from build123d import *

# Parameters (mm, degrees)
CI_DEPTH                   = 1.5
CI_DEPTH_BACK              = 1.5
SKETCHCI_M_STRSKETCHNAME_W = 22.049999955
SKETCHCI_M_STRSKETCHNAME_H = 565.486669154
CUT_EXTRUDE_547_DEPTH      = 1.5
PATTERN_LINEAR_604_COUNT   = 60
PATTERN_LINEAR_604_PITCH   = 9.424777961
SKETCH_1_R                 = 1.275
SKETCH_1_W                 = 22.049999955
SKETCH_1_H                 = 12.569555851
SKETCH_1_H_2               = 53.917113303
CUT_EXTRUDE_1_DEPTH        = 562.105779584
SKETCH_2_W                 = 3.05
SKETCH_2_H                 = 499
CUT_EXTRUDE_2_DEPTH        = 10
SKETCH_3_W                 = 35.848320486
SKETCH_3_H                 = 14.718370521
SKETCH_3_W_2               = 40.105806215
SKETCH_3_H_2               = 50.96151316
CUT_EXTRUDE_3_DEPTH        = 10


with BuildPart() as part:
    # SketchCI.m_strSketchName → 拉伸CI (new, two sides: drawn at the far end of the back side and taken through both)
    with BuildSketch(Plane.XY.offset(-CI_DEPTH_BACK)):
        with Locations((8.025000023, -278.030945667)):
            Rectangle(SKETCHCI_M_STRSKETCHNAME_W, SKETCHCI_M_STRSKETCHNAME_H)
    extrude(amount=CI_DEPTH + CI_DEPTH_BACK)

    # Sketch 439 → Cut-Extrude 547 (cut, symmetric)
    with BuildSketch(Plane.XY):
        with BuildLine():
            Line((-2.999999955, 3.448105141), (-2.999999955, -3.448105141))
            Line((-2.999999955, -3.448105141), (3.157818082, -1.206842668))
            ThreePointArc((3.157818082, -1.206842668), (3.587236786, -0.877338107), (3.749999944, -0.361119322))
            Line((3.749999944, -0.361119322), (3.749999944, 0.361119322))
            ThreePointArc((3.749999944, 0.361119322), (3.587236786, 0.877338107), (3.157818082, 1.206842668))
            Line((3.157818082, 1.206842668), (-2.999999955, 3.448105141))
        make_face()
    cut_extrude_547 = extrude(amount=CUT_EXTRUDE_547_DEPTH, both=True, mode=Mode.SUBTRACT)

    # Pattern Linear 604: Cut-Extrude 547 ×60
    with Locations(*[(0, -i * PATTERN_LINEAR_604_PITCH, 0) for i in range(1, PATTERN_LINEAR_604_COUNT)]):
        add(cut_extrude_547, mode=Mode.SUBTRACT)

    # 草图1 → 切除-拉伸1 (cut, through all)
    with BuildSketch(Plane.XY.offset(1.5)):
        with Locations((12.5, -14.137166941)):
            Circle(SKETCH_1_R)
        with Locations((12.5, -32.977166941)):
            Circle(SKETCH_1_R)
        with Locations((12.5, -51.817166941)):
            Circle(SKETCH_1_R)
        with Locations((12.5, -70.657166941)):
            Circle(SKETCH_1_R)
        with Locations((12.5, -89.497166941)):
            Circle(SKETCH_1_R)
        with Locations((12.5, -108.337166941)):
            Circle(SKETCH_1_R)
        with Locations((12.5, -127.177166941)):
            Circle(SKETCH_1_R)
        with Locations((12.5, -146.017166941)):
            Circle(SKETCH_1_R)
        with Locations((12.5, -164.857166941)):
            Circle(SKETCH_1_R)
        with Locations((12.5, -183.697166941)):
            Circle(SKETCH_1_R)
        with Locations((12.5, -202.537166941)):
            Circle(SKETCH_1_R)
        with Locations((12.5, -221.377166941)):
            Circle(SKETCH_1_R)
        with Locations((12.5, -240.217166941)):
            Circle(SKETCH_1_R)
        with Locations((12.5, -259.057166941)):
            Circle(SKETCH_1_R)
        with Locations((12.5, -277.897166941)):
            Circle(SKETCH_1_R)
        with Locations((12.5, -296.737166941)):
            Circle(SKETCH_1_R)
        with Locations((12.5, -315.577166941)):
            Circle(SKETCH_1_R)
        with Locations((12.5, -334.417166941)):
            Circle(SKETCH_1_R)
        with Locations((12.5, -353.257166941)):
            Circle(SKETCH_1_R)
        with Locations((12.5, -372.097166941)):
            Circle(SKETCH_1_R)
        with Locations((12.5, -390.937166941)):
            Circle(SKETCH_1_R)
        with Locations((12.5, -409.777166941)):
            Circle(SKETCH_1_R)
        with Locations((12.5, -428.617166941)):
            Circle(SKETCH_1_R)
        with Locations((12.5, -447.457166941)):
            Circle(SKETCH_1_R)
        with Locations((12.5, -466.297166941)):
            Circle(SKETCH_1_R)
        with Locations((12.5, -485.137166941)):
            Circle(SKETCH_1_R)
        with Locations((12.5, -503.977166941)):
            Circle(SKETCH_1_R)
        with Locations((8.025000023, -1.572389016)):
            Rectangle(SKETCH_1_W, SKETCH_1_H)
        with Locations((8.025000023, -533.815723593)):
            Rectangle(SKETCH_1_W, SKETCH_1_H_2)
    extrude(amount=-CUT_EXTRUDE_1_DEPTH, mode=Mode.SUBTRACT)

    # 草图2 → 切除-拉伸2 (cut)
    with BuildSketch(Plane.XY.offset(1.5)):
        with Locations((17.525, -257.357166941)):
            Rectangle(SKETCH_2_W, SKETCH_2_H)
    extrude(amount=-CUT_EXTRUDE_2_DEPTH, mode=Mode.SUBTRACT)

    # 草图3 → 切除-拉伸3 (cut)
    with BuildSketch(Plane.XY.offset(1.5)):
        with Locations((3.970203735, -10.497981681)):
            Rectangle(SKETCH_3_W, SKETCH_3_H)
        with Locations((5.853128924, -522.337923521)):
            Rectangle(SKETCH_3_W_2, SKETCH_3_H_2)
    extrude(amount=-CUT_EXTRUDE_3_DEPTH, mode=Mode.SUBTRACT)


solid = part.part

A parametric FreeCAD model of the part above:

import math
import FreeCAD as App
import Part
import Sketcher
from FreeCAD import Vector
Q = App.Units.Quantity

doc = App.newDocument("Part")
body = doc.addObject("PartDesign::Body", "Body")

# Sketch on XY plane
sketch1 = body.newObject("Sketcher::SketchObject", "Sketch")
sketch1.AttachmentSupport = (doc.getObject("XY_Plane"), [""])
sketch1.MapMode = "FlatFace"
sketch1.addGeometry([
    Part.LineSegment(Vector(-3, 5, 0), Vector(-3, -561, 0)),
    Part.LineSegment(Vector(-3, -561, 0), Vector(19, -561, 0)),
    Part.LineSegment(Vector(19, -561, 0), Vector(19, 5, 0)),
    Part.LineSegment(Vector(19, 5, 0), Vector(-3, 5, 0)),
], False)
sketch1.addConstraint([
    Sketcher.Constraint("Coincident", 0, 2, 1, 1),
    Sketcher.Constraint("Coincident", 1, 2, 2, 1),
    Sketcher.Constraint("Coincident", 2, 2, 3, 1),
    Sketcher.Constraint("Coincident", 3, 2, 0, 1),
    Sketcher.Constraint("Vertical", 0),
    Sketcher.Constraint("Horizontal", 1),
    Sketcher.Constraint("Vertical", 2),
    Sketcher.Constraint("Horizontal", 3),
    Sketcher.Constraint("DistanceX", 0, 2, -1, 1, 3.0),
    Sketcher.Constraint("DistanceX", 1, 1, 1, 2, 22.05),
    Sketcher.Constraint("DistanceY", 0, 2, 0, 1, 565.486669),
    Sketcher.Constraint("DistanceY", 0, 2, -1, 1, 560.77428),
])
pad1 = body.newObject("PartDesign::Pad", "Pad")
pad1.Profile = sketch1
pad1.Type = "TwoLengths"
pad1.Length = 1.5
pad1.Length2 = 1.5

# Sketch on XY plane
sketch2 = body.newObject("Sketcher::SketchObject", "Sketch001")
sketch2.AttachmentSupport = (doc.getObject("XY_Plane"), [""])
sketch2.MapMode = "FlatFace"
sketch2.addGeometry([
    Part.LineSegment(Vector(-3, 3.4, 0), Vector(-3, -3.4, 0)),  # 0
    Part.LineSegment(Vector(-3, -3.4, 0), Vector(3.2, -1.2, 0)),  # 1
    Part.ArcOfCircle(Part.Circle(Vector(2.8, -0.4, 0), Vector(0, 0, 1), 0.9), math.radians(-70), math.radians(0)),  # 2
    Part.LineSegment(Vector(3.7, -0.4, 0), Vector(3.7, 0.4, 0)),  # 3
    Part.ArcOfCircle(Part.Circle(Vector(2.8, 0.4, 0), Vector(0, 0, 1), 0.9), math.radians(0), math.radians(70)),  # 4
    Part.LineSegment(Vector(3.2, 1.2, 0), Vector(-3, 3.4, 0)),  # 5
], False)
sketch2.addConstraint([
    Sketcher.Constraint("Coincident", 0, 2, 1, 1),
    Sketcher.Constraint("Tangent", 1, 2, 2, 1),
    Sketcher.Constraint("Tangent", 2, 2, 3, 1),
    Sketcher.Constraint("Tangent", 3, 2, 4, 1),
    Sketcher.Constraint("Tangent", 4, 2, 5, 1),
    Sketcher.Constraint("Coincident", 5, 2, 0, 1),
    Sketcher.Constraint("Vertical", 0),
    Sketcher.Constraint("Vertical", 3),
    Sketcher.Constraint("Equal", 2, 4),
    Sketcher.Constraint("Symmetric", 1, 2, 4, 2, -1),
    Sketcher.Constraint("Radius", 2, 0.9),
    Sketcher.Constraint("Angle", 1, Q("20 deg")),
    Sketcher.Constraint("DistanceX", 0, 2, -1, 1, 3.0),
    Sketcher.Constraint("DistanceX", -1, 1, 2, 3, 2.85),
    Sketcher.Constraint("DistanceY", 0, 2, 0, 1, 6.89621),
])
pocket1 = body.newObject("PartDesign::Pocket", "Pocket")
pocket1.Profile = sketch2
pocket1.Length = 3
pocket1.Midplane = True
doc.recompute()

linearpattern = body.newObject("PartDesign::LinearPattern", "LinearPattern")
linearpattern.Originals = [pocket1]
linearpattern.Direction = (doc.getObject("Y_Axis"), [""])
linearpattern.Mode = "offset"
linearpattern.Offset = 9.424778
linearpattern.Occurrences = 60
linearpattern.Reversed = True
body.Tip = linearpattern

# Sketch on XY plane
sketch3 = body.newObject("Sketcher::SketchObject", "Sketch002")
sketch3.AttachmentSupport = (doc.getObject("XY_Plane"), [""])
sketch3.MapMode = "FlatFace"
sketch3.AttachmentOffset = App.Placement(Vector(0, 0, 1.5), App.Rotation())
sketch3.addGeometry([
    Part.Circle(Vector(12.5, -14.1, 0), Vector(0, 0, 1), 1.3),  # 0
    Part.Circle(Vector(12.5, -33, 0), Vector(0, 0, 1), 1.3),  # 1
    Part.Circle(Vector(12.5, -51.8, 0), Vector(0, 0, 1), 1.3),  # 2
    Part.Circle(Vector(12.5, -70.7, 0), Vector(0, 0, 1), 1.3),  # 3
    Part.Circle(Vector(12.5, -89.5, 0), Vector(0, 0, 1), 1.3),  # 4
    Part.Circle(Vector(12.5, -108.3, 0), Vector(0, 0, 1), 1.3),  # 5
    Part.Circle(Vector(12.5, -127.2, 0), Vector(0, 0, 1), 1.3),  # 6
    Part.Circle(Vector(12.5, -146, 0), Vector(0, 0, 1), 1.3),  # 7
    Part.Circle(Vector(12.5, -164.9, 0), Vector(0, 0, 1), 1.3),  # 8
    Part.Circle(Vector(12.5, -183.7, 0), Vector(0, 0, 1), 1.3),  # 9
    Part.Circle(Vector(12.5, -202.5, 0), Vector(0, 0, 1), 1.3),  # 10
    Part.Circle(Vector(12.5, -221.4, 0), Vector(0, 0, 1), 1.3),  # 11
    Part.Circle(Vector(12.5, -240.2, 0), Vector(0, 0, 1), 1.3),  # 12
    Part.Circle(Vector(12.5, -259.1, 0), Vector(0, 0, 1), 1.3),  # 13
    Part.Circle(Vector(12.5, -277.9, 0), Vector(0, 0, 1), 1.3),  # 14
    Part.Circle(Vector(12.5, -296.7, 0), Vector(0, 0, 1), 1.3),  # 15
    Part.Circle(Vector(12.5, -315.6, 0), Vector(0, 0, 1), 1.3),  # 16
    Part.Circle(Vector(12.5, -334.4, 0), Vector(0, 0, 1), 1.3),  # 17
    Part.Circle(Vector(12.5, -353.3, 0), Vector(0, 0, 1), 1.3),  # 18
    Part.Circle(Vector(12.5, -372.1, 0), Vector(0, 0, 1), 1.3),  # 19
    Part.Circle(Vector(12.5, -390.9, 0), Vector(0, 0, 1), 1.3),  # 20
    Part.Circle(Vector(12.5, -409.8, 0), Vector(0, 0, 1), 1.3),  # 21
    Part.Circle(Vector(12.5, -428.6, 0), Vector(0, 0, 1), 1.3),  # 22
    Part.Circle(Vector(12.5, -447.5, 0), Vector(0, 0, 1), 1.3),  # 23
    Part.Circle(Vector(12.5, -466.3, 0), Vector(0, 0, 1), 1.3),  # 24
    Part.Circle(Vector(12.5, -485.1, 0), Vector(0, 0, 1), 1.3),  # 25
    Part.Circle(Vector(12.5, -504, 0), Vector(0, 0, 1), 1.3),  # 26
    Part.LineSegment(Vector(-3, 4.7, 0), Vector(-3, -7.9, 0)),  # 27
    Part.LineSegment(Vector(-3, -7.9, 0), Vector(19.1, -7.9, 0)),  # 28
    Part.LineSegment(Vector(19.1, -7.9, 0), Vector(19.1, 4.7, 0)),  # 29
    Part.LineSegment(Vector(19.1, 4.7, 0), Vector(-3, 4.7, 0)),  # 30
    Part.LineSegment(Vector(-3, -506.9, 0), Vector(-3, -560.8, 0)),  # 31
    Part.LineSegment(Vector(-3, -560.8, 0), Vector(19.1, -560.8, 0)),  # 32
    Part.LineSegment(Vector(19.1, -560.8, 0), Vector(19.1, -506.9, 0)),  # 33
    Part.LineSegment(Vector(19.1, -506.9, 0), Vector(-3, -506.9, 0)),  # 34
], False)
sketch3.addConstraint([
    Sketcher.Constraint("Coincident", 27, 2, 28, 1),
    Sketcher.Constraint("Coincident", 28, 2, 29, 1),
    Sketcher.Constraint("Coincident", 29, 2, 30, 1),
    Sketcher.Constraint("Coincident", 30, 2, 27, 1),
    Sketcher.Constraint("Coincident", 31, 2, 32, 1),
    Sketcher.Constraint("Coincident", 32, 2, 33, 1),
    Sketcher.Constraint("Coincident", 33, 2, 34, 1),
    Sketcher.Constraint("Coincident", 34, 2, 31, 1),
    Sketcher.Constraint("Vertical", 27),
    Sketcher.Constraint("Horizontal", 28),
    Sketcher.Constraint("Vertical", 29),
    Sketcher.Constraint("Horizontal", 30),
    Sketcher.Constraint("Vertical", 31),
    Sketcher.Constraint("Horizontal", 32),
    Sketcher.Constraint("Vertical", 33),
    Sketcher.Constraint("Horizontal", 34),
    Sketcher.Constraint("Equal", 0, 1),
    Sketcher.Constraint("Equal", 1, 2),
    Sketcher.Constraint("Equal", 2, 3),
    Sketcher.Constraint("Equal", 3, 4),
    Sketcher.Constraint("Equal", 4, 5),
    Sketcher.Constraint("Equal", 5, 6),
    Sketcher.Constraint("Equal", 6, 7),
    Sketcher.Constraint("Equal", 7, 8),
    Sketcher.Constraint("Equal", 8, 9),
    Sketcher.Constraint("Equal", 9, 10),
    Sketcher.Constraint("Equal", 10, 11),
    Sketcher.Constraint("Equal", 11, 12),
    Sketcher.Constraint("Equal", 12, 13),
    Sketcher.Constraint("Equal", 13, 14),
    Sketcher.Constraint("Equal", 14, 15),
    Sketcher.Constraint("Equal", 15, 16),
    Sketcher.Constraint("Equal", 16, 17),
    Sketcher.Constraint("Equal", 17, 18),
    Sketcher.Constraint("Equal", 18, 19),
    Sketcher.Constraint("Equal", 19, 20),
    Sketcher.Constraint("Equal", 20, 21),
    Sketcher.Constraint("Equal", 21, 22),
    Sketcher.Constraint("Equal", 22, 23),
    Sketcher.Constraint("Equal", 23, 24),
    Sketcher.Constraint("Equal", 24, 25),
    Sketcher.Constraint("Equal", 25, 26),
    Sketcher.Constraint("Vertical", 0, 3, 1, 3),
    Sketcher.Constraint("Vertical", 1, 3, 2, 3),
    Sketcher.Constraint("Vertical", 2, 3, 3, 3),
    Sketcher.Constraint("Vertical", 3, 3, 4, 3),
    Sketcher.Constraint("Vertical", 4, 3, 5, 3),
    Sketcher.Constraint("Vertical", 5, 3, 6, 3),
    Sketcher.Constraint("Vertical", 6, 3, 7, 3),
    Sketcher.Constraint("Vertical", 7, 3, 8, 3),
    Sketcher.Constraint("Vertical", 8, 3, 9, 3),
    Sketcher.Constraint("Vertical", 9, 3, 10, 3),
    Sketcher.Constraint("Vertical", 10, 3, 11, 3),
    Sketcher.Constraint("Vertical", 11, 3, 12, 3),
    Sketcher.Constraint("Vertical", 12, 3, 13, 3),
    Sketcher.Constraint("Vertical", 13, 3, 14, 3),
    Sketcher.Constraint("Vertical", 14, 3, 15, 3),
    Sketcher.Constraint("Vertical", 15, 3, 16, 3),
    Sketcher.Constraint("Vertical", 16, 3, 17, 3),
    Sketcher.Constraint("Vertical", 17, 3, 18, 3),
    Sketcher.Constraint("Vertical", 18, 3, 19, 3),
    Sketcher.Constraint("Vertical", 19, 3, 20, 3),
    Sketcher.Constraint("Vertical", 20, 3, 21, 3),
    Sketcher.Constraint("Vertical", 21, 3, 22, 3),
    Sketcher.Constraint("Vertical", 22, 3, 23, 3),
    Sketcher.Constraint("Vertical", 23, 3, 24, 3),
    Sketcher.Constraint("Vertical", 24, 3, 25, 3),
    Sketcher.Constraint("Vertical", 25, 3, 26, 3),
    Sketcher.Constraint("Vertical", 30, 2, 31, 2),
    Sketcher.Constraint("Vertical", 29, 2, 32, 2),
    Sketcher.Constraint("Diameter", 0, 2.55),
    Sketcher.Constraint("DistanceX", 27, 2, -1, 1, 3.0),
    Sketcher.Constraint("DistanceX", 28, 1, 28, 2, 22.05),
    Sketcher.Constraint("DistanceX", -1, 1, 0, 3, 12.5),
    Sketcher.Constraint("DistanceY", 5, 3, 0, 3, 94.2),
    Sketcher.Constraint("DistanceY", 6, 3, 1, 3, 94.2),
    Sketcher.Constraint("DistanceY", 7, 3, 2, 3, 94.2),
    Sketcher.Constraint("DistanceY", 8, 3, 3, 3, 94.2),
    Sketcher.Constraint("DistanceY", 9, 3, 4, 3, 94.2),
    Sketcher.Constraint("DistanceY", 10, 3, 5, 3, 94.2),
    Sketcher.Constraint("DistanceY", 11, 3, 6, 3, 94.2),
    Sketcher.Constraint("DistanceY", 12, 3, 7, 3, 94.2),
    Sketcher.Constraint("DistanceY", 13, 3, 8, 3, 94.2),
    Sketcher.Constraint("DistanceY", 14, 3, 9, 3, 94.2),
    Sketcher.Constraint("DistanceY", 15, 3, 10, 3, 94.2),
    Sketcher.Constraint("DistanceY", 16, 3, 11, 3, 94.2),
    Sketcher.Constraint("DistanceY", 17, 3, 12, 3, 94.2),
    Sketcher.Constraint("DistanceY", 18, 3, 13, 3, 94.2),
    Sketcher.Constraint("DistanceY", 19, 3, 14, 3, 94.2),
    Sketcher.Constraint("DistanceY", 20, 3, 15, 3, 94.2),
    Sketcher.Constraint("DistanceY", 21, 3, 16, 3, 94.2),
    Sketcher.Constraint("DistanceY", 22, 3, 17, 3, 94.2),
    Sketcher.Constraint("DistanceY", 23, 3, 18, 3, 94.2),
    Sketcher.Constraint("DistanceY", 24, 3, 19, 3, 94.2),
    Sketcher.Constraint("DistanceY", 25, 3, 20, 3, 94.2),
    Sketcher.Constraint("DistanceY", 26, 3, 21, 3, 94.2),
    Sketcher.Constraint("DistanceY", 3, 3, 27, 2, 62.8),
    Sketcher.Constraint("DistanceY", 1, 3, 0, 3, 18.84),
    Sketcher.Constraint("DistanceY", 2, 3, 1, 3, 18.84),
    Sketcher.Constraint("DistanceY", 3, 3, 2, 3, 18.84),
    Sketcher.Constraint("DistanceY", 4, 3, 3, 3, 18.84),
    Sketcher.Constraint("DistanceY", 33, 2, 26, 3, 2.88),
    Sketcher.Constraint("DistanceY", 27, 2, 27, 1, 12.569556),
    Sketcher.Constraint("DistanceY", 31, 2, 31, 1, 53.917113),
    Sketcher.Constraint("DistanceY", -1, 1, 29, 2, 4.712389),
])
pocket2 = body.newObject("PartDesign::Pocket", "Pocket001")
pocket2.Profile = sketch3
pocket2.Type = "ThroughAll"

# Sketch on XY plane
sketch4 = body.newObject("Sketcher::SketchObject", "Sketch003")
sketch4.AttachmentSupport = (doc.getObject("XY_Plane"), [""])
sketch4.MapMode = "FlatFace"
sketch4.AttachmentOffset = App.Placement(Vector(0, 0, 1.5), App.Rotation())
sketch4.addGeometry([
    Part.LineSegment(Vector(16, -7.9, 0), Vector(16, -506.9, 0)),
    Part.LineSegment(Vector(16, -506.9, 0), Vector(19.1, -506.9, 0)),
    Part.LineSegment(Vector(19.1, -506.9, 0), Vector(19.1, -7.9, 0)),
    Part.LineSegment(Vector(19.1, -7.9, 0), Vector(16, -7.9, 0)),
], False)
sketch4.addConstraint([
    Sketcher.Constraint("Coincident", 0, 2, 1, 1),
    Sketcher.Constraint("Coincident", 1, 2, 2, 1),
    Sketcher.Constraint("Coincident", 2, 2, 3, 1),
    Sketcher.Constraint("Coincident", 3, 2, 0, 1),
    Sketcher.Constraint("Vertical", 0),
    Sketcher.Constraint("Horizontal", 1),
    Sketcher.Constraint("Vertical", 2),
    Sketcher.Constraint("Horizontal", 3),
    Sketcher.Constraint("DistanceY", 0, 2, 0, 1, 499.0),
    Sketcher.Constraint("DistanceX", -1, 1, 0, 2, 16.0),
    Sketcher.Constraint("DistanceX", 1, 1, 1, 2, 3.05),
    Sketcher.Constraint("DistanceY", 0, 2, -1, 1, 506.857167),
])
pocket3 = body.newObject("PartDesign::Pocket", "Pocket002")
pocket3.Profile = sketch4
pocket3.Length = 10

# Sketch on XY plane
sketch5 = body.newObject("Sketcher::SketchObject", "Sketch004")
sketch5.AttachmentSupport = (doc.getObject("XY_Plane"), [""])
sketch5.MapMode = "FlatFace"
sketch5.AttachmentOffset = App.Placement(Vector(0, 0, 1.5), App.Rotation())
sketch5.addGeometry([
    Part.LineSegment(Vector(-14, -3, 0), Vector(-14, -18, 0)),  # 0
    Part.LineSegment(Vector(-14, -18, 0), Vector(22, -18, 0)),  # 1
    Part.LineSegment(Vector(22, -18, 0), Vector(22, -3, 0)),  # 2
    Part.LineSegment(Vector(22, -3, 0), Vector(-14, -3, 0)),  # 3
    Part.LineSegment(Vector(-14, -497, 0), Vector(-14, -548, 0)),  # 4
    Part.LineSegment(Vector(-14, -548, 0), Vector(26, -548, 0)),  # 5
    Part.LineSegment(Vector(26, -548, 0), Vector(26, -497, 0)),  # 6
    Part.LineSegment(Vector(26, -497, 0), Vector(-14, -497, 0)),  # 7
], False)
sketch5.addConstraint([
    Sketcher.Constraint("Coincident", 0, 2, 1, 1),
    Sketcher.Constraint("Coincident", 1, 2, 2, 1),
    Sketcher.Constraint("Coincident", 2, 2, 3, 1),
    Sketcher.Constraint("Coincident", 3, 2, 0, 1),
    Sketcher.Constraint("Coincident", 4, 2, 5, 1),
    Sketcher.Constraint("Coincident", 5, 2, 6, 1),
    Sketcher.Constraint("Coincident", 6, 2, 7, 1),
    Sketcher.Constraint("Coincident", 7, 2, 4, 1),
    Sketcher.Constraint("Vertical", 0),
    Sketcher.Constraint("Horizontal", 1),
    Sketcher.Constraint("Vertical", 2),
    Sketcher.Constraint("Horizontal", 3),
    Sketcher.Constraint("Vertical", 4),
    Sketcher.Constraint("Horizontal", 5),
    Sketcher.Constraint("Vertical", 6),
    Sketcher.Constraint("Horizontal", 7),
    Sketcher.Constraint("DistanceY", 6, 2, 1, 2, 479.0),
    Sketcher.Constraint("DistanceX", 1, 1, 1, 2, 35.84832),
    Sketcher.Constraint("DistanceY", 0, 2, 0, 1, 14.718371),
    Sketcher.Constraint("DistanceX", 5, 1, 5, 2, 40.105806),
    Sketcher.Constraint("DistanceY", 4, 2, 4, 1, 50.961513),
    Sketcher.Constraint("DistanceY", 4, 2, -1, 1, 547.81868),
    Sketcher.Constraint("DistanceX", 4, 2, 1, 2, 36.094138),
    Sketcher.Constraint("DistanceX", 0, 2, -1, 1, 13.953957),
])
pocket4 = body.newObject("PartDesign::Pocket", "Pocket003")
pocket4.Profile = sketch5
pocket4.Length = 10

doc.recompute()
